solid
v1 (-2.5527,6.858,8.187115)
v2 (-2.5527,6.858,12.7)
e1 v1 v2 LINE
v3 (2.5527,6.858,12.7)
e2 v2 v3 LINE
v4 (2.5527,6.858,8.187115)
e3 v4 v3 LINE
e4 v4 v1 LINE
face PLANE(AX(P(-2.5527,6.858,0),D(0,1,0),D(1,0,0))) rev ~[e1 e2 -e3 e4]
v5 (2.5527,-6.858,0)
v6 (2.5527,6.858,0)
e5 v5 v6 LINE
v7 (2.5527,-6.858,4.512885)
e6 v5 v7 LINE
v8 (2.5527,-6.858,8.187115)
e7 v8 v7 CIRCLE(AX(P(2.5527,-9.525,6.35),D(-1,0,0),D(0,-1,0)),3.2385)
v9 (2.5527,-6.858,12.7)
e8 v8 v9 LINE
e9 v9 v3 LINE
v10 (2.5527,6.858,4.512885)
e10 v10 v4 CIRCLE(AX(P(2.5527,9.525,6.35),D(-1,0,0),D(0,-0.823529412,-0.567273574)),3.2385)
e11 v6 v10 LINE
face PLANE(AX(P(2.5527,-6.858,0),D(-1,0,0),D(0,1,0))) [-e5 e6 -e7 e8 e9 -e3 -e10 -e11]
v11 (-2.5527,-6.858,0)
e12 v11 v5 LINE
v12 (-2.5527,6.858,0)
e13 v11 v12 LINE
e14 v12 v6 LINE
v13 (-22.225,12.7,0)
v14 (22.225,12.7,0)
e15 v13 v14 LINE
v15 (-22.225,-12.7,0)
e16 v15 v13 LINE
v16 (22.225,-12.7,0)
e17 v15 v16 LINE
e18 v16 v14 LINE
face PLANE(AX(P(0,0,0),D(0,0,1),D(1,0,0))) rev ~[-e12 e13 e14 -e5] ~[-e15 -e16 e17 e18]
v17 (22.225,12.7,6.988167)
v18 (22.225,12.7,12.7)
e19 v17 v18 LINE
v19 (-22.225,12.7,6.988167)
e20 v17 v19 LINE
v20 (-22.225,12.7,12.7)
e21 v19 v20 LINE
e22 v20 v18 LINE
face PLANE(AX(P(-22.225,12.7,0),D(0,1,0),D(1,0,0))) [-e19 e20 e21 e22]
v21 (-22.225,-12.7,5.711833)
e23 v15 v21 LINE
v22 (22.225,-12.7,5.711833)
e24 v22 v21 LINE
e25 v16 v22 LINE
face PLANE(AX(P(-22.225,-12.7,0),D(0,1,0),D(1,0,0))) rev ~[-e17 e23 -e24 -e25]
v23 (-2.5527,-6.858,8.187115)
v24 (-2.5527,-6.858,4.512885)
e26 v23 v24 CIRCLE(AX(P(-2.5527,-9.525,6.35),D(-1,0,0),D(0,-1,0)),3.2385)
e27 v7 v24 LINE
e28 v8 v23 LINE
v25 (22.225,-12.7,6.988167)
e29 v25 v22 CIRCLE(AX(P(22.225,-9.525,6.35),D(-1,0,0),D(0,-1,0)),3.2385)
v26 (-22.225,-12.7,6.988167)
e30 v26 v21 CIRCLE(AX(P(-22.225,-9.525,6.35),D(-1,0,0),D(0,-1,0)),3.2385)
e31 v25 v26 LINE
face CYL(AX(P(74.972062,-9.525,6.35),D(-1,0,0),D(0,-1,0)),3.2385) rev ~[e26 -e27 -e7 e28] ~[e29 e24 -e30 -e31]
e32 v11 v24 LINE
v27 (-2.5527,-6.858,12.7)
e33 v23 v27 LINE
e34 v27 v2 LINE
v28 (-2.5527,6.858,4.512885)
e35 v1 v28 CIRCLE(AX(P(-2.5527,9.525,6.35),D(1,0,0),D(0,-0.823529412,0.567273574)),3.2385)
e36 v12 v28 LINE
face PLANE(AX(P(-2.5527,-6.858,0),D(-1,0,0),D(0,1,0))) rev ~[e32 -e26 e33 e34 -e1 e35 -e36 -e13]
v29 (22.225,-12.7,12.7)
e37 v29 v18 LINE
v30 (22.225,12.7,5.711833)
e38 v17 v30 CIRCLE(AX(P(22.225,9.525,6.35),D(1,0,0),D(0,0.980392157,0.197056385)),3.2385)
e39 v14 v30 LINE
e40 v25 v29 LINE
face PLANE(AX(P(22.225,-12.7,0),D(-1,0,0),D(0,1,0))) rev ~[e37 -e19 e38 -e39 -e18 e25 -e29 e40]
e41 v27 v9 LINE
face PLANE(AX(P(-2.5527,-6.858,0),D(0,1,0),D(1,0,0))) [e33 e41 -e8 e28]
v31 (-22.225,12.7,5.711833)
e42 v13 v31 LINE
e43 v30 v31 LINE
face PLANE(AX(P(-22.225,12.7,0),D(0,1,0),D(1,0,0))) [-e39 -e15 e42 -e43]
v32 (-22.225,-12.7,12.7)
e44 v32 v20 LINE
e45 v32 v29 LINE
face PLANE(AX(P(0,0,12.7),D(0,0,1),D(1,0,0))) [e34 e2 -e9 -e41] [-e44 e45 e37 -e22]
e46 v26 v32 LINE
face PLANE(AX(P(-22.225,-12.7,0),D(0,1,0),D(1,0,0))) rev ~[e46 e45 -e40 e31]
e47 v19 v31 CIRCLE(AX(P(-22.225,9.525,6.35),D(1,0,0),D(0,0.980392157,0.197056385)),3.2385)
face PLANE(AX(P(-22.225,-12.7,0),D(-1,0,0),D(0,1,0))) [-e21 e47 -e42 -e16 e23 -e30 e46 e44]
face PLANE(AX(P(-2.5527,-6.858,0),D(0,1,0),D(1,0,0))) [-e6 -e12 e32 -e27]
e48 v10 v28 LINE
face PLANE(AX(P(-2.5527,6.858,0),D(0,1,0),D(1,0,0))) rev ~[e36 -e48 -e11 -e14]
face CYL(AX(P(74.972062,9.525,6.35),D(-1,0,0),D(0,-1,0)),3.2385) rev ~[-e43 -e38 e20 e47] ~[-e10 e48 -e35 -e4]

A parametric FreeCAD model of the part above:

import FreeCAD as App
import Part
import Sketcher
from FreeCAD import Vector
Q = App.Units.Quantity

doc = App.newDocument("Part")
params = doc.addObject("Spreadsheet::Sheet", "Params")
for row, (alias, value) in enumerate([
    ("sketch1_height", "1 in"),
    ("sketch1_width", "1.75 in"),
    ("sketch1_height2", "0.54 in"),
    ("sketch1_width2", "0.201 in"),
    ("pad1_length", "0.5 in"),
    ("sketch2_diameter", "0.255 in"),
    ("hole_diameter", "0.255 in"),
], start=1):
    params.set(f"A{row}", alias)
    params.set(f"B{row}", "=" + value)
    params.setAlias(f"B{row}", alias)

body = doc.addObject("PartDesign::Body", "Body")

sketch1 = body.newObject("Sketcher::SketchObject", "Sketch")
sketch1.AttachmentSupport = (doc.getObject("XY_Plane"), [""])
sketch1.MapMode = "FlatFace"
sketch1.addGeometry(Part.LineSegment(Vector(-22, 13, 0), Vector(-22, -13, 0)), False)
sketch1.addGeometry(Part.LineSegment(Vector(-22, -13, 0), Vector(22, -13, 0)), False)
sketch1.addGeometry(Part.LineSegment(Vector(22, -13, 0), Vector(22, 13, 0)), False)
sketch1.addGeometry(Part.LineSegment(Vector(22, 13, 0), Vector(-22, 13, 0)), False)
sketch1.addGeometry(Part.LineSegment(Vector(3, -7, 0), Vector(-3, -7, 0)), False)
sketch1.addGeometry(Part.LineSegment(Vector(-3, -7, 0), Vector(-3, 7, 0)), False)
sketch1.addGeometry(Part.LineSegment(Vector(-3, 7, 0), Vector(3, 7, 0)), False)
sketch1.addGeometry(Part.LineSegment(Vector(3, 7, 0), Vector(3, -7, 0)), False)
sketch1.addConstraint(Sketcher.Constraint("Coincident", 0, 2, 1, 1))
sketch1.addConstraint(Sketcher.Constraint("Coincident", 1, 2, 2, 1))
sketch1.addConstraint(Sketcher.Constraint("Coincident", 2, 2, 3, 1))
sketch1.addConstraint(Sketcher.Constraint("Coincident", 3, 2, 0, 1))
sketch1.addConstraint(Sketcher.Constraint("Coincident", 4, 2, 5, 1))
sketch1.addConstraint(Sketcher.Constraint("Coincident", 5, 2, 6, 1))
sketch1.addConstraint(Sketcher.Constraint("Coincident", 6, 2, 7, 1))
sketch1.addConstraint(Sketcher.Constraint("Coincident", 7, 2, 4, 1))
sketch1.addConstraint(Sketcher.Constraint("Vertical", 0))
sketch1.addConstraint(Sketcher.Constraint("Horizontal", 1))
sketch1.addConstraint(Sketcher.Constraint("Vertical", 2))
sketch1.addConstraint(Sketcher.Constraint("Horizontal", 3))
sketch1.addConstraint(Sketcher.Constraint("Horizontal", 4))
sketch1.addConstraint(Sketcher.Constraint("Vertical", 5))
sketch1.addConstraint(Sketcher.Constraint("Horizontal", 6))
sketch1.addConstraint(Sketcher.Constraint("Vertical", 7))
sketch1.addConstraint(Sketcher.Constraint("Symmetric", 0, 2, 2, 2, -1, 1))
sketch1.addConstraint(Sketcher.Constraint("Symmetric", 4, 2, 6, 2, -1, 1))
sketch1.addConstraint(Sketcher.Constraint("DistanceY", 0, 2, 0, 1, Q("1 in")))
sketch1.addConstraint(Sketcher.Constraint("DistanceX", 1, 1, 1, 2, Q("1.75 in")))
sketch1.addConstraint(Sketcher.Constraint("DistanceY", 5, 1, 5, 2, Q("0.54 in")))
sketch1.addConstraint(Sketcher.Constraint("DistanceX", 4, 2, 4, 1, Q("0.201 in")))
sketch1.setExpression("Constraints[18]", "Params.sketch1_height")
sketch1.setExpression("Constraints[19]", "Params.sketch1_width")
sketch1.setExpression("Constraints[20]", "Params.sketch1_height2")
sketch1.setExpression("Constraints[21]", "Params.sketch1_width2")
pad1 = body.newObject("PartDesign::Pad", "Pad")
pad1.Profile = sketch1
pad1.setExpression("Length", "Params.pad1_length")

sketch2 = body.newObject("Sketcher::SketchObject", "Sketch001")
sketch2.AttachmentSupport = (doc.getObject("YZ_Plane"), [""])
sketch2.MapMode = "FlatFace"
sketch2.AttachmentOffset = App.Placement(Vector(0, 0, 0.875 * 25.4), App.Rotation())
sketch2.addGeometry(Part.Circle(Vector(-9.5, 6.3, 0), Vector(0, 0, 1), 3.2), False)
sketch2.addGeometry(Part.Circle(Vector(9.5, 6.3, 0), Vector(0, 0, 1), 3.2), False)
sketch2.addConstraint(Sketcher.Constraint("Equal", 0, 1))
sketch2.addConstraint(Sketcher.Constraint("Symmetric", 0, 3, 1, 3, -2))
sketch2.addConstraint(Sketcher.Constraint("Diameter", 0, Q("0.255 in")))
sketch2.addConstraint(Sketcher.Constraint("DistanceY", -1, 1, 0, 3, Q("0.25 in")))
sketch2.addConstraint(Sketcher.Constraint("DistanceX", 0, 3, 1, 3, Q("0.75 in")))
sketch2.setExpression("Constraints[2]", "Params.sketch2_diameter")
doc.recompute()
hole = body.newObject("PartDesign::Hole", "Hole")
hole.Profile = sketch2
hole.ThreadType = "None"
hole.setExpression("Diameter", "Params.hole_diameter")
hole.DepthType = "ThroughAll"

doc.recompute()
